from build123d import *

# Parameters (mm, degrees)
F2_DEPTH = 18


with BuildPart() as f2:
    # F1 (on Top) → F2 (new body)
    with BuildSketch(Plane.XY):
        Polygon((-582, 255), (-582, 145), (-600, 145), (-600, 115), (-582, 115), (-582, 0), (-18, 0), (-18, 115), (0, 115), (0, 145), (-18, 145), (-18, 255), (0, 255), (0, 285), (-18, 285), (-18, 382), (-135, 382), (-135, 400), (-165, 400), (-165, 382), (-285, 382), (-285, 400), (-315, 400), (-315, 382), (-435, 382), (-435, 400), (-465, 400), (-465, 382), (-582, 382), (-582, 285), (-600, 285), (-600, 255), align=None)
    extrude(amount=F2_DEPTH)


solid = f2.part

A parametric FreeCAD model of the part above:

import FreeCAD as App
import Part
import Sketcher
Q = App.Units.Quantity

doc = App.newDocument("Part")
params = doc.addObject("Spreadsheet::Sheet", "Params")
for row, (alias, value) in enumerate([
    ("sketch1_width", "18 mm"),
    ("sketch1_width2", "564 mm"),
    ("sketch1_width3", "117 mm"),
    ("sketch1_width4", "30 mm"),
    ("sketch1_height", "110 mm"),
    ("pad1_length", "18 mm"),
], start=1):
    params.set(f"A{row}", alias)
    params.set(f"B{row}", "=" + value)
    params.setAlias(f"B{row}", alias)

body = doc.addObject("PartDesign::Body", "Body")

sketch1 = body.newObject("Sketcher::SketchObject", "Sketch")
sketch1.AttachmentSupport = (doc.getObject("XY_Plane"), [""])
sketch1.MapMode = "FlatFace"
sketch1.addGeometry([
    Part.LineSegment(App.Vector(-582, 255, 0), App.Vector(-582, 145, 0)),
    Part.LineSegment(App.Vector(-582, 145, 0), App.Vector(-600, 145, 0)),
    Part.LineSegment(App.Vector(-600, 145, 0), App.Vector(-600, 115, 0)),
    Part.LineSegment(App.Vector(-600, 115, 0), App.Vector(-582, 115, 0)),
    Part.LineSegment(App.Vector(-582, 115, 0), App.Vector(-582, 0, 0)),
    Part.LineSegment(App.Vector(-582, 0, 0), App.Vector(-18, 0, 0)),
    Part.LineSegment(App.Vector(-18, 0, 0), App.Vector(-18, 115, 0)),
    Part.LineSegment(App.Vector(-18, 115, 0), App.Vector(0, 115, 0)),
    Part.LineSegment(App.Vector(0, 115, 0), App.Vector(0, 145, 0)),
    Part.LineSegment(App.Vector(0, 145, 0), App.Vector(-18, 145, 0)),
    Part.LineSegment(App.Vector(-18, 145, 0), App.Vector(-18, 255, 0)),
    Part.LineSegment(App.Vector(-18, 255, 0), App.Vector(0, 255, 0)),
    Part.LineSegment(App.Vector(0, 255, 0), App.Vector(0, 285, 0)),
    Part.LineSegment(App.Vector(0, 285, 0), App.Vector(-18, 285, 0)),
    Part.LineSegment(App.Vector(-18, 285, 0), App.Vector(-18, 382, 0)),
    Part.LineSegment(App.Vector(-18, 382, 0), App.Vector(-135, 382, 0)),
    Part.LineSegment(App.Vector(-135, 382, 0), App.Vector(-135, 400, 0)),
    Part.LineSegment(App.Vector(-135, 400, 0), App.Vector(-165, 400, 0)),
    Part.LineSegment(App.Vector(-165, 400, 0), App.Vector(-165, 382, 0)),
    Part.LineSegment(App.Vector(-165, 382, 0), App.Vector(-285, 382, 0)),
    Part.LineSegment(App.Vector(-285, 382, 0), App.Vector(-285, 400, 0)),
    Part.LineSegment(App.Vector(-285, 400, 0), App.Vector(-315, 400, 0)),
    Part.LineSegment(App.Vector(-315, 400, 0), App.Vector(-315, 382, 0)),
    Part.LineSegment(App.Vector(-315, 382, 0), App.Vector(-435, 382, 0)),
    Part.LineSegment(App.Vector(-435, 382, 0), App.Vector(-435, 400, 0)),
    Part.LineSegment(App.Vector(-435, 400, 0), App.Vector(-465, 400, 0)),
    Part.LineSegment(App.Vector(-465, 400, 0), App.Vector(-465, 382, 0)),
    Part.LineSegment(App.Vector(-465, 382, 0), App.Vector(-582, 382, 0)),
    Part.LineSegment(App.Vector(-582, 382, 0), App.Vector(-582, 285, 0)),
    Part.LineSegment(App.Vector(-582, 285, 0), App.Vector(-600, 285, 0)),
    Part.LineSegment(App.Vector(-600, 285, 0), App.Vector(-600, 255, 0)),
    Part.LineSegment(App.Vector(-600, 255, 0), App.Vector(-582, 255, 0)),
], False)
sketch1.addConstraint([
    Sketcher.Constraint("Coincident", 0, 2, 1, 1),
    Sketcher.Constraint("Coincident", 1, 2, 2, 1),
    Sketcher.Constraint("Coincident", 2, 2, 3, 1),
    Sketcher.Constraint("Coincident", 3, 2, 4, 1),
    Sketcher.Constraint("Coincident", 4, 2, 5, 1),
    Sketcher.Constraint("Coincident", 5, 2, 6, 1),
    Sketcher.Constraint("Coincident", 6, 2, 7, 1),
    Sketcher.Constraint("Coincident", 7, 2, 8, 1),
    Sketcher.Constraint("Coincident", 8, 2, 9, 1),
    Sketcher.Constraint("Coincident", 9, 2, 10, 1),
    Sketcher.Constraint("Coincident", 10, 2, 11, 1),
    Sketcher.Constraint("Coincident", 11, 2, 12, 1),
    Sketcher.Constraint("Coincident", 12, 2, 13, 1),
    Sketcher.Constraint("Coincident", 13, 2, 14, 1),
    Sketcher.Constraint("Coincident", 14, 2, 15, 1),
    Sketcher.Constraint("Coincident", 15, 2, 16, 1),
    Sketcher.Constraint("Coincident", 16, 2, 17, 1),
    Sketcher.Constraint("Coincident", 17, 2, 18, 1),
    Sketcher.Constraint("Coincident", 18, 2, 19, 1),
    Sketcher.Constraint("Coincident", 19, 2, 20, 1),
    Sketcher.Constraint("Coincident", 20, 2, 21, 1),
    Sketcher.Constraint("Coincident", 21, 2, 22, 1),
    Sketcher.Constraint("Coincident", 22, 2, 23, 1),
    Sketcher.Constraint("Coincident", 23, 2, 24, 1),
    Sketcher.Constraint("Coincident", 24, 2, 25, 1),
    Sketcher.Constraint("Coincident", 25, 2, 26, 1),
    Sketcher.Constraint("Coincident", 26, 2, 27, 1),
    Sketcher.Constraint("Coincident", 27, 2, 28, 1),
    Sketcher.Constraint("Coincident", 28, 2, 29, 1),
    Sketcher.Constraint("Coincident", 29, 2, 30, 1),
    Sketcher.Constraint("Coincident", 30, 2, 31, 1),
    Sketcher.Constraint("Coincident", 31, 2, 0, 1),
    Sketcher.Constraint("Vertical", 0),
    Sketcher.Constraint("Horizontal", 1),
    Sketcher.Constraint("Vertical", 2),
    Sketcher.Constraint("Horizontal", 3),
    Sketcher.Constraint("Vertical", 4),
    Sketcher.Constraint("Horizontal", 5),
    Sketcher.Constraint("Vertical", 6),
    Sketcher.Constraint("Horizontal", 7),
    Sketcher.Constraint("Vertical", 8),
    Sketcher.Constraint("Horizontal", 9),
    Sketcher.Constraint("Vertical", 10),
    Sketcher.Constraint("Horizontal", 11),
    Sketcher.Constraint("Vertical", 12),
    Sketcher.Constraint("Horizontal", 13),
    Sketcher.Constraint("Vertical", 14),
    Sketcher.Constraint("Horizontal", 15),
    Sketcher.Constraint("Vertical", 16),
    Sketcher.Constraint("Horizontal", 17),
    Sketcher.Constraint("Vertical", 18),
    Sketcher.Constraint("Horizontal", 19),
    Sketcher.Constraint("Vertical", 20),
    Sketcher.Constraint("Horizontal", 21),
    Sketcher.Constraint("Vertical", 22),
    Sketcher.Constraint("Horizontal", 23),
    Sketcher.Constraint("Vertical", 24),
    Sketcher.Constraint("Horizontal", 25),
    Sketcher.Constraint("Vertical", 26),
    Sketcher.Constraint("Horizontal", 27),
    Sketcher.Constraint("Vertical", 28),
    Sketcher.Constraint("Horizontal", 29),
    Sketcher.Constraint("Vertical", 30),
    Sketcher.Constraint("Horizontal", 31),
    Sketcher.Constraint("PointOnObject", 4, 2, -1),
    Sketcher.Constraint("PointOnObject", 7, 2, -2),
    Sketcher.Constraint("PointOnObject", 11, 2, -2),
    Sketcher.Constraint("Horizontal", 3, 2, 6, 2),
    Sketcher.Constraint("Horizontal", 1, 2, 8, 2),
    Sketcher.Constraint("Horizontal", 15, 2, 18, 2),
    Sketcher.Constraint("Horizontal", 17, 2, 20, 2),
    Sketcher.Constraint("Horizontal", 19, 2, 22, 2),
    Sketcher.Constraint("Horizontal", 21, 2, 24, 2),
    Sketcher.Constraint("Horizontal", 23, 2, 26, 2),
    Sketcher.Constraint("Horizontal", 13, 2, 28, 2),
    Sketcher.Constraint("Horizontal", 11, 2, 30, 2),
    Sketcher.Constraint("Vertical", 0, 2, 3, 2),
    Sketcher.Constraint("Vertical", 6, 2, 9, 2),
    Sketcher.Constraint("Vertical", 10, 2, 13, 2),
    Sketcher.Constraint("Vertical", 4, 2, 27, 2),
    Sketcher.Constraint("Vertical", 2, 2, 29, 2),
    Sketcher.Constraint("Equal", 3, 7),
    Sketcher.Constraint("Equal", 17, 21),
    Sketcher.Constraint("Equal", 19, 23),
    Sketcher.Constraint("Equal", 21, 25),
    Sketcher.Constraint("Equal", 15, 27),
    Sketcher.Constraint("Equal", 25, 2),
    Sketcher.Constraint("Equal", 8, 12),
    Sketcher.Constraint("Equal", 31, 16),
    Sketcher.Constraint("DistanceX", 1, 2, 1, 1, Q("18 mm")),
    Sketcher.Constraint("DistanceX", 5, 1, 5, 2, Q("564 mm")),
    Sketcher.Constraint("DistanceX", 15, 2, 15, 1, Q("117 mm")),
    Sketcher.Constraint("DistanceX", 17, 2, 17, 1, Q("30 mm")),
    Sketcher.Constraint("DistanceY", 0, 2, 0, 1, Q("110 mm")),
    Sketcher.Constraint("DistanceY", 4, 2, 4, 1, Q("115 mm")),
    Sketcher.Constraint("DistanceY", 14, 1, 14, 2, Q("97 mm")),
])
sketch1.setExpression("Constraints[89]", "Params.sketch1_width")
sketch1.setExpression("Constraints[90]", "Params.sketch1_width2")
sketch1.setExpression("Constraints[91]", "Params.sketch1_width3")
sketch1.setExpression("Constraints[92]", "Params.sketch1_width4")
sketch1.setExpression("Constraints[93]", "Params.sketch1_height")
pad1 = body.newObject("PartDesign::Pad", "Pad")
pad1.Profile = sketch1
pad1.setExpression("Length", "Params.pad1_length")

doc.recompute()
